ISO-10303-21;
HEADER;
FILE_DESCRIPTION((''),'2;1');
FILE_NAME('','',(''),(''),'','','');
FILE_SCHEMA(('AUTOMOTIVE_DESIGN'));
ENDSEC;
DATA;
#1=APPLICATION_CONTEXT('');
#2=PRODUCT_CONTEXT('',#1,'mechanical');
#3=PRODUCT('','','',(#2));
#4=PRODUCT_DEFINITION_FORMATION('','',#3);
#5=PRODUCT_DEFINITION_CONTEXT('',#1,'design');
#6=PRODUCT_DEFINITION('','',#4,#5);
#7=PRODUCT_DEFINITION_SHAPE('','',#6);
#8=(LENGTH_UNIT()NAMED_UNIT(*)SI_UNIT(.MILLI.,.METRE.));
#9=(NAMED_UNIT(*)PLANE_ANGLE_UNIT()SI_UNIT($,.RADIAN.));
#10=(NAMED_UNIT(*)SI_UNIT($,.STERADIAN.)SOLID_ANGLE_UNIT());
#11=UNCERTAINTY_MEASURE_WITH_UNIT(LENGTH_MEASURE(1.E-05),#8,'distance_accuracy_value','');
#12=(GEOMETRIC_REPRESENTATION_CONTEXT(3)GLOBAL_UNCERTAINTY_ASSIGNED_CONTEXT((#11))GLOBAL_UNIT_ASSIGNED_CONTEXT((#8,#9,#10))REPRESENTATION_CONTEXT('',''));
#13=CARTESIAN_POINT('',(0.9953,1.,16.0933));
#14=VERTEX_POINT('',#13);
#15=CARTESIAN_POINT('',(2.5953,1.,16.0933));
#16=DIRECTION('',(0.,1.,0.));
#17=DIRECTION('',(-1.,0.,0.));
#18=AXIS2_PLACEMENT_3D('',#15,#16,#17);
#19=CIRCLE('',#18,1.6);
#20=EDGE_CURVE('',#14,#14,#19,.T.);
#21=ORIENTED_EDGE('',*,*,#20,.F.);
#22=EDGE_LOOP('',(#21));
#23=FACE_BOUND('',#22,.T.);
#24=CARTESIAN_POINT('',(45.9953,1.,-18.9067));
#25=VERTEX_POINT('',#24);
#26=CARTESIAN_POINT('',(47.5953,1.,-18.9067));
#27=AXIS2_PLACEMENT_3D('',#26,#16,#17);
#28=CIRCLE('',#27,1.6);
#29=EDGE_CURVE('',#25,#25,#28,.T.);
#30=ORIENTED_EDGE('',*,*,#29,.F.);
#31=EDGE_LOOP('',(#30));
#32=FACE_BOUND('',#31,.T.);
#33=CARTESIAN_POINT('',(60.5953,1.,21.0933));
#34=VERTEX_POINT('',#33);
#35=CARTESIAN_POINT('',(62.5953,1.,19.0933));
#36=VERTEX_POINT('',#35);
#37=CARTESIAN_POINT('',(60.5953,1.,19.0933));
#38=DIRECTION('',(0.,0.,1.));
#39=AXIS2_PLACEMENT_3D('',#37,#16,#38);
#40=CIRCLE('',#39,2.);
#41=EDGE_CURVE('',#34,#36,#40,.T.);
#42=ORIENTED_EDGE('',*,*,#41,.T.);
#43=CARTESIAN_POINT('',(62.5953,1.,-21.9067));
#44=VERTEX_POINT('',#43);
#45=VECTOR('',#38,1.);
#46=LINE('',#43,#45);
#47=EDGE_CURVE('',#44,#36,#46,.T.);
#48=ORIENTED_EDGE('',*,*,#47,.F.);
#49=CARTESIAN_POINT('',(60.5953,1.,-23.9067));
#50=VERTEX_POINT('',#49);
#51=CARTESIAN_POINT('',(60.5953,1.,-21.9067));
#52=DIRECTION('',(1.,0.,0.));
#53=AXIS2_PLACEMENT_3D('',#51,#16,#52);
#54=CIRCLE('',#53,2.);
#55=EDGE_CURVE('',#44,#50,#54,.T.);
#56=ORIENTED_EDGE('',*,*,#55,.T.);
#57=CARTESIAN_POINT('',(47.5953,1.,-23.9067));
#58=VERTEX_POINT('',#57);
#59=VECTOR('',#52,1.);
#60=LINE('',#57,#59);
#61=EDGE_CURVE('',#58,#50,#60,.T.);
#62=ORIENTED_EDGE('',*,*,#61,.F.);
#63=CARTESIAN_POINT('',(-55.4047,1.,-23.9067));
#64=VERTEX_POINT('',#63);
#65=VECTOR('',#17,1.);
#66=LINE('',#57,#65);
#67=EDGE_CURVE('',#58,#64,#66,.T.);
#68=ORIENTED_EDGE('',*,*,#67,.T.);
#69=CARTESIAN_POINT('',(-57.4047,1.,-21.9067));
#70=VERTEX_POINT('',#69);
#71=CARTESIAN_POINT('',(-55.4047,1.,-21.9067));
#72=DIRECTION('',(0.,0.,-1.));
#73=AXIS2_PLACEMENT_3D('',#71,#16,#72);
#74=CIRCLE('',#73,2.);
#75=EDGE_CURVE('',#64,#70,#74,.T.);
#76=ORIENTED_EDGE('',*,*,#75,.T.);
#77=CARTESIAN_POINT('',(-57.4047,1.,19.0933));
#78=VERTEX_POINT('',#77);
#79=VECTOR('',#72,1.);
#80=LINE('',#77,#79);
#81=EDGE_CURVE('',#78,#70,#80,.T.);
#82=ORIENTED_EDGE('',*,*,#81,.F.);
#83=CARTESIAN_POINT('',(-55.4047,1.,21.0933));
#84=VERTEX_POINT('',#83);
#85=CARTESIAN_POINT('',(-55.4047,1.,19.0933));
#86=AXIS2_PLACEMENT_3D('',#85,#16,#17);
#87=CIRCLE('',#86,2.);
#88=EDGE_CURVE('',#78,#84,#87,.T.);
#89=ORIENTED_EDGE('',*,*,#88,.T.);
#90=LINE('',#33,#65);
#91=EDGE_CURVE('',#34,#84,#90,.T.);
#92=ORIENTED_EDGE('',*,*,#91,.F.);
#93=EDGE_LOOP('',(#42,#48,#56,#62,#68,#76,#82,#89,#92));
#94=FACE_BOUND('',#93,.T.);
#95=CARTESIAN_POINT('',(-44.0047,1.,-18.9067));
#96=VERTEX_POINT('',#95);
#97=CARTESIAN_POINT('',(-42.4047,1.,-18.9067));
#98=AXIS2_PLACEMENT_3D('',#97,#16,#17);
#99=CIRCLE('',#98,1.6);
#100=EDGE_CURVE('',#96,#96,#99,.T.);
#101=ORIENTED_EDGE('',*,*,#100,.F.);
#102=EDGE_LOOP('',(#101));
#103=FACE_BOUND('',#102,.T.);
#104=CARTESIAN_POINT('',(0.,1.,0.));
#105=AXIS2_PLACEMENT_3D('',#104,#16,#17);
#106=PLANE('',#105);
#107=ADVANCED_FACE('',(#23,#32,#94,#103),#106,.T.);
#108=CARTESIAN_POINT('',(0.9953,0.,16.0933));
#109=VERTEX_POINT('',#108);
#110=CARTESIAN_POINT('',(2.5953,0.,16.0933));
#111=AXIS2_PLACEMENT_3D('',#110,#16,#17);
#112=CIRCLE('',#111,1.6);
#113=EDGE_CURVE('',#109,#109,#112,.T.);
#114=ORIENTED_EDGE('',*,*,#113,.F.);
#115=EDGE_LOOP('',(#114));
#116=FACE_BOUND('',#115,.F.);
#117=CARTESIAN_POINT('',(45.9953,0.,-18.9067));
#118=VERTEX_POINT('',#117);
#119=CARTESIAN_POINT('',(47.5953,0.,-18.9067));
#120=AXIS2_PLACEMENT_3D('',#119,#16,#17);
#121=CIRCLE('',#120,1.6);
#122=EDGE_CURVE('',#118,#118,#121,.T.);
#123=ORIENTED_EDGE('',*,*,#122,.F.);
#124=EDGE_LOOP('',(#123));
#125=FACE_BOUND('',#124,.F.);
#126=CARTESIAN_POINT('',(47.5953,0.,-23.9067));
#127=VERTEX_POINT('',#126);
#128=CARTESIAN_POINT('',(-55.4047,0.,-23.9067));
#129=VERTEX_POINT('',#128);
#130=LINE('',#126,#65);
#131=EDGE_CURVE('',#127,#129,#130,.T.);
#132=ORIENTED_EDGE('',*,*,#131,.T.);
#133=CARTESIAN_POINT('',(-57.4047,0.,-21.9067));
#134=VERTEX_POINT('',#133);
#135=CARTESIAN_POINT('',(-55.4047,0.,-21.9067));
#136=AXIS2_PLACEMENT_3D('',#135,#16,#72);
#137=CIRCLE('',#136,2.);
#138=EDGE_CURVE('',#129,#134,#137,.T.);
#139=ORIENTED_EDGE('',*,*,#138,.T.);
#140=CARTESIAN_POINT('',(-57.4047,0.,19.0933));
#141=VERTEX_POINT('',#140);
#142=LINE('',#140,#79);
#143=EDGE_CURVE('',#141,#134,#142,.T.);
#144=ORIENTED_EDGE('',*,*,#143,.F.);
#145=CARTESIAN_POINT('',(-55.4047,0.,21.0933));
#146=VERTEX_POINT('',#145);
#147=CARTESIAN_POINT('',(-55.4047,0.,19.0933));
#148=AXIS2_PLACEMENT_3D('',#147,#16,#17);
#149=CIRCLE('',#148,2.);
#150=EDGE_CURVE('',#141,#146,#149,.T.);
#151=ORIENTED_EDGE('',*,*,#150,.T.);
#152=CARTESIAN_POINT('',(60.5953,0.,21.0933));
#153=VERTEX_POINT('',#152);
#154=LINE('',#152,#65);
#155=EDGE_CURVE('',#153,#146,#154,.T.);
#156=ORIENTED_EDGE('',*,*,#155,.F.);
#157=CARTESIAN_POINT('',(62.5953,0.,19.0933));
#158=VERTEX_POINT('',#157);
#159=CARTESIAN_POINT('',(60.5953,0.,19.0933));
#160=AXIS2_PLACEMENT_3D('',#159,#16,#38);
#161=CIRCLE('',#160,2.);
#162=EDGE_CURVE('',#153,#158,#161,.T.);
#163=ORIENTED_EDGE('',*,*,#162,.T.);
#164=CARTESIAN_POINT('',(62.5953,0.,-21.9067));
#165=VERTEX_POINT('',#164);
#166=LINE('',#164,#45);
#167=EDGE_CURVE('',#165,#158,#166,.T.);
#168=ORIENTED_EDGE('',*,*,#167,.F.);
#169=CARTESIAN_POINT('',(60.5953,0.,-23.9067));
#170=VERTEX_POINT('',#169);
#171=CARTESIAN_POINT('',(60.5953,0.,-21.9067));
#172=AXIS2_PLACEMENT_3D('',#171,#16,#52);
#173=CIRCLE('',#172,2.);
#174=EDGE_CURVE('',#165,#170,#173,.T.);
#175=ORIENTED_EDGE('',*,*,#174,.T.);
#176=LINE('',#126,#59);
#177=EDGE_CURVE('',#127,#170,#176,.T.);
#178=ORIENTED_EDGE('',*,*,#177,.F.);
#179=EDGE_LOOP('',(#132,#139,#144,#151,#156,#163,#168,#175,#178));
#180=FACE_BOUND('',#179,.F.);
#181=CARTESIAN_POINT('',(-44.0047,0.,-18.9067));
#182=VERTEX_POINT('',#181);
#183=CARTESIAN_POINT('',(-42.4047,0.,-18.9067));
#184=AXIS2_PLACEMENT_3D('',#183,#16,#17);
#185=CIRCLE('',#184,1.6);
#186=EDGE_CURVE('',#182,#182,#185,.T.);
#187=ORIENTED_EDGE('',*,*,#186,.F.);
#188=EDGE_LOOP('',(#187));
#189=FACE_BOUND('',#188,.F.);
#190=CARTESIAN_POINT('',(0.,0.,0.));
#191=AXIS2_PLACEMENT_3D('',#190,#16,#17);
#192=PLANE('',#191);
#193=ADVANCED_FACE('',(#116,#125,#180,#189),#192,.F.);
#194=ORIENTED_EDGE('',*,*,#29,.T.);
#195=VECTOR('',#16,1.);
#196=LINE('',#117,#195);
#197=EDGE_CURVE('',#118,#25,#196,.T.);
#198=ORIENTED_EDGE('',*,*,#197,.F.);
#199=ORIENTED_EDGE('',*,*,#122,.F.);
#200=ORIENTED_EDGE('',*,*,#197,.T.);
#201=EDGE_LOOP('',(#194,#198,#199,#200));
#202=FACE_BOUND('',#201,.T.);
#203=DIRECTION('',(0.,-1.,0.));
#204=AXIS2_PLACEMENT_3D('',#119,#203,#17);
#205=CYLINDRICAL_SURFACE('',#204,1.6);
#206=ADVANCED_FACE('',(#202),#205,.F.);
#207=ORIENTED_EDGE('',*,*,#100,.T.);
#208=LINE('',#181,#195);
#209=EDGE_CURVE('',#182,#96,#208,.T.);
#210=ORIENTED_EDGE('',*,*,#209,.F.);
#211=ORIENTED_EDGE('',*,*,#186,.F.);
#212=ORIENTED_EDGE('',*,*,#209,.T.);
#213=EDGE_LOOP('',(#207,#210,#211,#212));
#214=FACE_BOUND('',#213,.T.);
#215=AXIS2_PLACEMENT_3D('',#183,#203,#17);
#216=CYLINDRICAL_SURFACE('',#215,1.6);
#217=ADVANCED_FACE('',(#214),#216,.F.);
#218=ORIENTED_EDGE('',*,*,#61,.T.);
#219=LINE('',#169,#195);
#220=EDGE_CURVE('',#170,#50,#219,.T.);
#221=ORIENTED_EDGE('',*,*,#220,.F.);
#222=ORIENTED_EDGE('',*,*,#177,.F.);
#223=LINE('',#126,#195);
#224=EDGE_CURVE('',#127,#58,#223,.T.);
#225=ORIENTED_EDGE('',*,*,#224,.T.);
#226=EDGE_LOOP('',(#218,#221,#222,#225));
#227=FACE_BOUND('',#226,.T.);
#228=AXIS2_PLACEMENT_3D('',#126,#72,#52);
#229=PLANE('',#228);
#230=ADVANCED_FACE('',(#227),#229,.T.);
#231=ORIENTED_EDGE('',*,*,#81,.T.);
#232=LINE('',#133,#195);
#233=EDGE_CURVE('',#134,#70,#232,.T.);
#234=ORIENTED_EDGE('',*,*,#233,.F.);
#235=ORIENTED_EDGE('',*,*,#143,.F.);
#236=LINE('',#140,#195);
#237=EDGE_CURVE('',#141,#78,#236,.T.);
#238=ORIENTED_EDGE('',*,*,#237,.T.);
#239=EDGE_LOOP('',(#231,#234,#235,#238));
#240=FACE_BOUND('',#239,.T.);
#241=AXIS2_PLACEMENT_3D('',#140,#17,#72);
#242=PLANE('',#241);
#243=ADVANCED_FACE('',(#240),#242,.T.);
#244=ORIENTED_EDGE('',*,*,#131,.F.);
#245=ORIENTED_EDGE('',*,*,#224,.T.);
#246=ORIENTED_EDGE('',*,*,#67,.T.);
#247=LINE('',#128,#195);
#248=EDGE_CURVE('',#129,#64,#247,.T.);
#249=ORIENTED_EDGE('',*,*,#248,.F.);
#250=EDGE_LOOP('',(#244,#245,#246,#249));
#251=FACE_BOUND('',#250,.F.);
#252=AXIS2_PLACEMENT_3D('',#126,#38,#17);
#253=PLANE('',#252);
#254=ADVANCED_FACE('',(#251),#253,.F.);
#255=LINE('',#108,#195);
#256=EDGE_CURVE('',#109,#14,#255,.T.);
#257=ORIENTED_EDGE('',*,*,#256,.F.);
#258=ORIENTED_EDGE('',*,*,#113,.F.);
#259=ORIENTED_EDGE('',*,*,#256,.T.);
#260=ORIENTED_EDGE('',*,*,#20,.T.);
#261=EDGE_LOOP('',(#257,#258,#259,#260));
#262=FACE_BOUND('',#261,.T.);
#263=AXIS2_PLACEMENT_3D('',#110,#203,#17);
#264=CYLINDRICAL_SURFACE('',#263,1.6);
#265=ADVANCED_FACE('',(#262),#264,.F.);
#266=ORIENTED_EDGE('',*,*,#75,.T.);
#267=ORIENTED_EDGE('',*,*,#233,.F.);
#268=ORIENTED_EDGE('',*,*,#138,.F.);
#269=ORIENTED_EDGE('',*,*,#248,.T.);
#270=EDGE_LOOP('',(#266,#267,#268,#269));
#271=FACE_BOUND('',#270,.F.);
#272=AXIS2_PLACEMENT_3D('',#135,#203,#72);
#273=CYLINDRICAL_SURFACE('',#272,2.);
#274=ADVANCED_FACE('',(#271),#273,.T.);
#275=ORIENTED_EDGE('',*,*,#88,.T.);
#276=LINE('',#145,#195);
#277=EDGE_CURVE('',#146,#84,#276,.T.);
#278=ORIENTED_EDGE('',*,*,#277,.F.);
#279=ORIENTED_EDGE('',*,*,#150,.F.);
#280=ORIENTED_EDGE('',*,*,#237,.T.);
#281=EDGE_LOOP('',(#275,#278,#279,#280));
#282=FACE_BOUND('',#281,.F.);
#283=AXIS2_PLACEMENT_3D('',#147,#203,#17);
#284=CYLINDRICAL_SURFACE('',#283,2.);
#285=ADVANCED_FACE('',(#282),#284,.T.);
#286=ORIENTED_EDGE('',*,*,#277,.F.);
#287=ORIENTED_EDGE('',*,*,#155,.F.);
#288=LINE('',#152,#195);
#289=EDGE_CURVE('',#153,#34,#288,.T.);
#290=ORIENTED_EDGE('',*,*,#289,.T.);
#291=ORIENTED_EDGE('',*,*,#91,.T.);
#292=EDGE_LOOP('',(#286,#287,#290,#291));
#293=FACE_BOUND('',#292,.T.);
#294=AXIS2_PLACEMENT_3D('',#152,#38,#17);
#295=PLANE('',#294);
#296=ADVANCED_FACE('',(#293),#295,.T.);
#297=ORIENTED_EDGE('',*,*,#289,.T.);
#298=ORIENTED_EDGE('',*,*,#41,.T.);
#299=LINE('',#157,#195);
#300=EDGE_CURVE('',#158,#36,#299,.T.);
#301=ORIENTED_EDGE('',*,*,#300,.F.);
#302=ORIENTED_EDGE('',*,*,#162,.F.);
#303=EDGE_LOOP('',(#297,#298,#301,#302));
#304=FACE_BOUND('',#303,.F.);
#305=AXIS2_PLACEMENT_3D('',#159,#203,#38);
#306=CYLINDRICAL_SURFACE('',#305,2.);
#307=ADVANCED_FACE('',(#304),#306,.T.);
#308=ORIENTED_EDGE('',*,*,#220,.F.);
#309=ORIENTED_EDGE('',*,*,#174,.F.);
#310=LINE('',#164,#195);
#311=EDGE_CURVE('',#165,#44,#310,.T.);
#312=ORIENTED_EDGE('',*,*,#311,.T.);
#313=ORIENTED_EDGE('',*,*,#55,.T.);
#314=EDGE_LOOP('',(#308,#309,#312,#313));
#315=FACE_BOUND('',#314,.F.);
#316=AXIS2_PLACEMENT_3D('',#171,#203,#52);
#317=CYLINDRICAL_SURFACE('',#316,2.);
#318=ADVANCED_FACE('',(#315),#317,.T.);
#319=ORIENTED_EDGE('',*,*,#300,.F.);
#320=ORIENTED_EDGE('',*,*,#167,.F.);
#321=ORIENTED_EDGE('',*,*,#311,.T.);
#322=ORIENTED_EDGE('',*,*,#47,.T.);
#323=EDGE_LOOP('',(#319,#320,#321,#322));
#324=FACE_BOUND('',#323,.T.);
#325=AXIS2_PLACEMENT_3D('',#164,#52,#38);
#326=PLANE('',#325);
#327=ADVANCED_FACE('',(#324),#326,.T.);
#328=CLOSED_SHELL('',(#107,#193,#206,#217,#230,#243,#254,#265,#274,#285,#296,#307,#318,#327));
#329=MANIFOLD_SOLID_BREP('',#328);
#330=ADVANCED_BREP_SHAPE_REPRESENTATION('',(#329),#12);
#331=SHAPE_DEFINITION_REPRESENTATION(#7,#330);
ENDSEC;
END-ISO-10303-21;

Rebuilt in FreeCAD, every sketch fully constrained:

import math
import FreeCAD as App
import Part
import Sketcher
Q = App.Units.Quantity

doc = App.newDocument("Part")
body = doc.addObject("PartDesign::Body", "Body")

# Sketch on XZ plane
sketch1 = body.newObject("Sketcher::SketchObject", "Sketch")
sketch1.AttachmentSupport = (doc.getObject("XZ_Plane"), [""])
sketch1.MapMode = "FlatFace"
sketch1.addGeometry([
    Part.LineSegment(App.Vector(60.5953, -23.9067, 0), App.Vector(-55.4047, -23.9067, 0)),  # 0
    Part.ArcOfCircle(Part.Circle(App.Vector(-55.4047, -21.9067, 0), App.Vector(0, 0, 1), 2), math.radians(180), math.radians(270)),  # 1
    Part.LineSegment(App.Vector(-57.4047, -21.9067, 0), App.Vector(-57.4047, 19.0933, 0)),  # 2
    Part.ArcOfCircle(Part.Circle(App.Vector(-55.4047, 19.0933, 0), App.Vector(0, 0, 1), 2), math.radians(90), math.radians(180)),  # 3
    Part.LineSegment(App.Vector(-55.4047, 21.0933, 0), App.Vector(60.5953, 21.0933, 0)),  # 4
    Part.ArcOfCircle(Part.Circle(App.Vector(60.5953, 19.0933, 0), App.Vector(0, 0, 1), 2), math.radians(0), math.radians(90)),  # 5
    Part.LineSegment(App.Vector(62.5953, 19.0933, 0), App.Vector(62.5953, -21.9067, 0)),  # 6
    Part.ArcOfCircle(Part.Circle(App.Vector(60.5953, -21.9067, 0), App.Vector(0, 0, 1), 2), math.radians(-90), math.radians(0)),  # 7
    Part.Circle(App.Vector(47.5953, -18.9067, 0), App.Vector(0, 0, 1), 1.6),  # 8
    Part.Circle(App.Vector(-42.4047, -18.9067, 0), App.Vector(0, 0, 1), 1.6),  # 9
    Part.Circle(App.Vector(2.5953, 16.0933, 0), App.Vector(0, 0, 1), 1.6),  # 10
], False)
sketch1.addConstraint([
    Sketcher.Constraint("Tangent", 0, 2, 1, 2),
    Sketcher.Constraint("Tangent", 1, 1, 2, 1),
    Sketcher.Constraint("Tangent", 2, 2, 3, 2),
    Sketcher.Constraint("Tangent", 3, 1, 4, 1),
    Sketcher.Constraint("Tangent", 4, 2, 5, 2),
    Sketcher.Constraint("Tangent", 5, 1, 6, 1),
    Sketcher.Constraint("Tangent", 6, 2, 7, 2),
    Sketcher.Constraint("Tangent", 7, 1, 0, 1),
    Sketcher.Constraint("Horizontal", 0),
    Sketcher.Constraint("Vertical", 2),
    Sketcher.Constraint("Horizontal", 4),
    Sketcher.Constraint("Vertical", 6),
    Sketcher.Constraint("Equal", 1, 3),
    Sketcher.Constraint("Equal", 3, 5),
    Sketcher.Constraint("Equal", 5, 7),
    Sketcher.Constraint("Equal", 8, 9),
    Sketcher.Constraint("Equal", 9, 10),
    Sketcher.Constraint("Horizontal", 8, 3, 9, 3),
    Sketcher.Constraint("Radius", 1, Q("2 mm")),
    Sketcher.Constraint("Diameter", 8, Q("3.2 mm")),
    Sketcher.Constraint("DistanceX", 0, 2, 0, 1, Q("116 mm")),
    Sketcher.Constraint("DistanceY", 2, 1, 2, 2, Q("41 mm")),
    Sketcher.Constraint("DistanceX", 8, 3, 7, 3, Q("13 mm")),
    Sketcher.Constraint("DistanceY", 7, 3, 8, 3, Q("3 mm")),
    Sketcher.Constraint("DistanceX", 1, 3, 9, 3, Q("13 mm")),
    Sketcher.Constraint("DistanceX", 10, 3, 8, 3, Q("45 mm")),
    Sketcher.Constraint("DistanceY", 8, 3, 10, 3, Q("35 mm")),
    Sketcher.Constraint("DistanceX", 1, 3, -1, 1, Q("55.4047 mm")),
    Sketcher.Constraint("DistanceY", 1, 3, -1, 1, Q("21.9067 mm")),
])
pad1 = body.newObject("PartDesign::Pad", "Pad")
pad1.Profile = sketch1
pad1.Length = 1
pad1.Reversed = True

doc.recompute()
